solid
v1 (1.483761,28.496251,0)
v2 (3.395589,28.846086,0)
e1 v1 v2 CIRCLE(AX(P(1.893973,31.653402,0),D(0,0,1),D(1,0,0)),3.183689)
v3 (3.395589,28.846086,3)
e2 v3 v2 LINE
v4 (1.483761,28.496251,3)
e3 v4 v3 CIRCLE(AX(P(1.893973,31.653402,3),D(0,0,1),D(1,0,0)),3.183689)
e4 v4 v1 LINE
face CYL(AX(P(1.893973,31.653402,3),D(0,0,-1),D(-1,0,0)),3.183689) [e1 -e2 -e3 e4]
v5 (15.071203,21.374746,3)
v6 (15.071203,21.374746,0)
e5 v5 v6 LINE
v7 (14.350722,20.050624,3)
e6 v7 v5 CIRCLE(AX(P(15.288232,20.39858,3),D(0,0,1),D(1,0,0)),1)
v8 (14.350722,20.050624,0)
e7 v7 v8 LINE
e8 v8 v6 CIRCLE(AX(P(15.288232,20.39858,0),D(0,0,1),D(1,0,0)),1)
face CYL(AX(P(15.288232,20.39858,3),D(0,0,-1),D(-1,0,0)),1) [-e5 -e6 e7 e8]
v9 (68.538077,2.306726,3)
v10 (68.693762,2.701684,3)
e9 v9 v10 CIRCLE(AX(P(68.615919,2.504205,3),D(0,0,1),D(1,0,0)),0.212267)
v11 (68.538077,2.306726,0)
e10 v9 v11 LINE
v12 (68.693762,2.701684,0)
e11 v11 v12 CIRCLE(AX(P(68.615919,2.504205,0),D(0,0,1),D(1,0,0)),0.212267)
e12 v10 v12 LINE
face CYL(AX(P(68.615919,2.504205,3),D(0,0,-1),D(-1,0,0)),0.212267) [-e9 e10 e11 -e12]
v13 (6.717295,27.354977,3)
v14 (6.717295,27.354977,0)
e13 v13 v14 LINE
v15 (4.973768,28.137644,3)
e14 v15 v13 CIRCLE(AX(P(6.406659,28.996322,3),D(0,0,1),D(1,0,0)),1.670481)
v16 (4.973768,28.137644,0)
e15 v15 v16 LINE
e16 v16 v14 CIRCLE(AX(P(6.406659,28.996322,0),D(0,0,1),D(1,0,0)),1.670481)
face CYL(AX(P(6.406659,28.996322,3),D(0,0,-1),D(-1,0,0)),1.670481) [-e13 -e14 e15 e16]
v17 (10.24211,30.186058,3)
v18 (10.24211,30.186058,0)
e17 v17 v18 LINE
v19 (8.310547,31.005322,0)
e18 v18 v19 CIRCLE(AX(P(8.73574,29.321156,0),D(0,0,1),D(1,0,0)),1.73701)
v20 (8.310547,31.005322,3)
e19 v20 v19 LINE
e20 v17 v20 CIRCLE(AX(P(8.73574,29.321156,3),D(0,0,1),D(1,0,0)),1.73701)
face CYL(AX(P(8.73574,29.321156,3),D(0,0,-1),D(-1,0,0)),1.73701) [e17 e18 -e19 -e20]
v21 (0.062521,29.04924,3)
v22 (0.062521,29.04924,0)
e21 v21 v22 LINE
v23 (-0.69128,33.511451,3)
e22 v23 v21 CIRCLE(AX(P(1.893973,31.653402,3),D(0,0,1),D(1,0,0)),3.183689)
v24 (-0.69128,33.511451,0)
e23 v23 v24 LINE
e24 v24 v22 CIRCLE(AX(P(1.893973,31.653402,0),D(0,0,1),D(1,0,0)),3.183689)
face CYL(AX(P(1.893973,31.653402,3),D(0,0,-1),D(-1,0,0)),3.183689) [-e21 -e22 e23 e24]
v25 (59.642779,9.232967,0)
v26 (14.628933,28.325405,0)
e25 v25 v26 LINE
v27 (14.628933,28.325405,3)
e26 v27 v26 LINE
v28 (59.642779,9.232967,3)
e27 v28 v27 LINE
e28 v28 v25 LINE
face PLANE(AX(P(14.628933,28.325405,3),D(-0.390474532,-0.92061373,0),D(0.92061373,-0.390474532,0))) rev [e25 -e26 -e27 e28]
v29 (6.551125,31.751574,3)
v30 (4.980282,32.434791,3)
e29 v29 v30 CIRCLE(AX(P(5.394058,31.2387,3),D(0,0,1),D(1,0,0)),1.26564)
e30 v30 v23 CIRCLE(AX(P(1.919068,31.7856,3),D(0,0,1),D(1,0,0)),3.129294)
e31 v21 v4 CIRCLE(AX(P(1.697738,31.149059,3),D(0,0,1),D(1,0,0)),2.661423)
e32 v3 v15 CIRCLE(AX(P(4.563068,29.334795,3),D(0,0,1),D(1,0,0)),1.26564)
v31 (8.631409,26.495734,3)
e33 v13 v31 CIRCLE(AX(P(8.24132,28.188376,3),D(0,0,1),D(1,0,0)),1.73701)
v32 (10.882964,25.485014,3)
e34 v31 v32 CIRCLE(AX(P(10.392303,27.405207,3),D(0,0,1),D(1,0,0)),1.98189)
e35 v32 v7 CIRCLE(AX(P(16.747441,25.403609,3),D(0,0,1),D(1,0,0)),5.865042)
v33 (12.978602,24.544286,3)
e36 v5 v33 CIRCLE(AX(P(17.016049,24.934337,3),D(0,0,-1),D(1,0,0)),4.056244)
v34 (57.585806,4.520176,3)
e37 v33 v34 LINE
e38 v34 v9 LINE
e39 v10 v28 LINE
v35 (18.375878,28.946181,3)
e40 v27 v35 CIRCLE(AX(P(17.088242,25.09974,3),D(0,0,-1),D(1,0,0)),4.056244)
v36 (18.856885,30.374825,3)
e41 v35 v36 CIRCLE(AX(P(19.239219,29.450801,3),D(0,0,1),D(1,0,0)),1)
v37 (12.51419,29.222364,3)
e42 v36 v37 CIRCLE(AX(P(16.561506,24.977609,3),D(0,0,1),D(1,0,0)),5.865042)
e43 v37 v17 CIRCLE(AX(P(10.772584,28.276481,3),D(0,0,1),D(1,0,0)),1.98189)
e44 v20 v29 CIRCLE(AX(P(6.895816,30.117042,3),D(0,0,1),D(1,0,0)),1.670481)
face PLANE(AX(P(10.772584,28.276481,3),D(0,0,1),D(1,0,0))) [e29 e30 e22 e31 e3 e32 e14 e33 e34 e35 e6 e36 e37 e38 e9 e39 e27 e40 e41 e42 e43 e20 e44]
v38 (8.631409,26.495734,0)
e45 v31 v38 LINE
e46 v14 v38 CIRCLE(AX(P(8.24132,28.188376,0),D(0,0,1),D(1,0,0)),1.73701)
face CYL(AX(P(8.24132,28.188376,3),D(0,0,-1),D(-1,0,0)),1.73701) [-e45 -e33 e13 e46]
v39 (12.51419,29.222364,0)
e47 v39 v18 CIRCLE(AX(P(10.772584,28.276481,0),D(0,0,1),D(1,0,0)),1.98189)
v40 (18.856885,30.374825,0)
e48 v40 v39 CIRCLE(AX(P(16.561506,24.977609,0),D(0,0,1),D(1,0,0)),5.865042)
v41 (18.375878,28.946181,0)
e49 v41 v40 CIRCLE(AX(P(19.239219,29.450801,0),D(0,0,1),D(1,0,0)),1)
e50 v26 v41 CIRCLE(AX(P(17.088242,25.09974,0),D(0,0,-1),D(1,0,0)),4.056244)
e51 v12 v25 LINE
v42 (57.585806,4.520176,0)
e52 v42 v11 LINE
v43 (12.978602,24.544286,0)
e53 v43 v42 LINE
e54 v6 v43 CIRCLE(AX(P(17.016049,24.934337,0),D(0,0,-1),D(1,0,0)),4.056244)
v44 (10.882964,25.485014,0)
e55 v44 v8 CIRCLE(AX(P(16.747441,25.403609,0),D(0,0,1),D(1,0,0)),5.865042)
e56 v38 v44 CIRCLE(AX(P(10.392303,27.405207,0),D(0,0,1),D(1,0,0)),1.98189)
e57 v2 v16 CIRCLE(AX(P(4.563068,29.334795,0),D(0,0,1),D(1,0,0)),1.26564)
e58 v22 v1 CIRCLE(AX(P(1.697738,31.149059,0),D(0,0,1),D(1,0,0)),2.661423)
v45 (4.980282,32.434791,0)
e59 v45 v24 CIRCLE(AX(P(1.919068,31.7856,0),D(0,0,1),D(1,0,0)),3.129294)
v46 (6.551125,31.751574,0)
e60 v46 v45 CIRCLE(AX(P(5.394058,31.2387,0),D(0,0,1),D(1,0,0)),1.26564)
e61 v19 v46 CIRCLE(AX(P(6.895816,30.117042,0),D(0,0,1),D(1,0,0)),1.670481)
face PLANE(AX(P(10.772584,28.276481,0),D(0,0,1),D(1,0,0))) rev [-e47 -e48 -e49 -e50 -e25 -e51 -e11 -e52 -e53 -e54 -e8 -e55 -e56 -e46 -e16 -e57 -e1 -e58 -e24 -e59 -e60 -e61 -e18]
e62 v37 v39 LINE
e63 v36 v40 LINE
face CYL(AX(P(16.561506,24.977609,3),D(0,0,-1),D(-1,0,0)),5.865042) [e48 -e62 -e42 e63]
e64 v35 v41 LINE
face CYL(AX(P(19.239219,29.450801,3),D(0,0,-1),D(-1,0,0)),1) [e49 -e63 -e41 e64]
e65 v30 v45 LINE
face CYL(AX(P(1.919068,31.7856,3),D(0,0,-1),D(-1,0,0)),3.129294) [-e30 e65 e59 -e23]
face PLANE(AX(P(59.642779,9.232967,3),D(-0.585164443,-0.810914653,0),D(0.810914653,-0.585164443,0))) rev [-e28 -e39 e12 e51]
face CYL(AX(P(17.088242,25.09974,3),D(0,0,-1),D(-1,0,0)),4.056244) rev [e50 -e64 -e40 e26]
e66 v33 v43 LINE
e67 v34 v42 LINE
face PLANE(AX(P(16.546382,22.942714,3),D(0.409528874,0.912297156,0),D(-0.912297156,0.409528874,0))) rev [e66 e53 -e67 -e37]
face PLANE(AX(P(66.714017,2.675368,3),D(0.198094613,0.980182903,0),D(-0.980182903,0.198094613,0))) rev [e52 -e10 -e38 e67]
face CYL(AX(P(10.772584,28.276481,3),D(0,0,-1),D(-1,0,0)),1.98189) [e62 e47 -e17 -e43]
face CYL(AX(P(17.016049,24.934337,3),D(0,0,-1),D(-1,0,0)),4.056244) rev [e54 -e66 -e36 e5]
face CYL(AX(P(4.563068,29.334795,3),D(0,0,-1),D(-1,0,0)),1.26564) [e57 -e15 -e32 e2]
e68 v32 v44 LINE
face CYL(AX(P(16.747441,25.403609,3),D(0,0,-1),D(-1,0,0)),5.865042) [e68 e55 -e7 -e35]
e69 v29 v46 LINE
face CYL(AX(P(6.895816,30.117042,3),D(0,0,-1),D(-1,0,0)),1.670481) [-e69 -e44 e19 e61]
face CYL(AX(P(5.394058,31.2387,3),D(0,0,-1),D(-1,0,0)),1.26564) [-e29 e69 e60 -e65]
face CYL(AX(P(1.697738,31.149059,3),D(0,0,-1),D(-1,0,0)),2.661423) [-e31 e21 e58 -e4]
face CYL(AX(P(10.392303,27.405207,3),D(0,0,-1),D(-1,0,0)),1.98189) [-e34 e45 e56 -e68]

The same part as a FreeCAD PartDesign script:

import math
import FreeCAD as App
import Part
import Sketcher
from FreeCAD import Vector

doc = App.newDocument("Part")
params = doc.addObject("Spreadsheet::Sheet", "Params")
for row, (alias, value) in enumerate([
    ("sketch1_radius", "1 mm"),
    ("sketch1_radius2", "1 mm"),
    ("pad1_length", "3 mm"),
], start=1):
    params.set(f"A{row}", alias)
    params.set(f"B{row}", "=" + value)
    params.setAlias(f"B{row}", alias)

body = doc.addObject("PartDesign::Body", "Body")

# Sketch on XY plane
sketch1 = body.newObject("Sketcher::SketchObject", "Sketch")
sketch1.AttachmentSupport = (doc.getObject("XY_Plane"), [""])
sketch1.MapMode = "FlatFace"
sketch1.addGeometry([
    Part.LineSegment(Vector(66.714017, 2.675368, 0), Vector(68.538077, 2.306726, 0)),  # 0
    Part.ArcOfCircle(Part.Circle(Vector(68.615919, 2.504205, 0), Vector(0, 0, 1), 0.212267), math.radians(-111.513427), math.radians(68.486573)),  # 1
    Part.LineSegment(Vector(68.693762, 2.701684, 0), Vector(59.642779, 9.232967, 0)),  # 2
    Part.LineSegment(Vector(59.642779, 9.232967, 0), Vector(18.229236, 26.798351, 0)),  # 3
    Part.LineSegment(Vector(18.229236, 26.798351, 0), Vector(14.628933, 28.325405, 0)),  # 4
    Part.ArcOfCircle(Part.Circle(Vector(17.088242, 25.09974, 0), Vector(0, 0, 1), 4.056244), math.radians(71.491499), math.radians(127.322599)),  # 5
    Part.ArcOfCircle(Part.Circle(Vector(19.239219, 29.450801, 0), Vector(0, 0, 1), 1), math.radians(-149.693876), math.radians(112.478325)),  # 6
    Part.ArcOfCircle(Part.Circle(Vector(16.561506, 24.977609, 0), Vector(0, 0, 1), 5.865042), math.radians(66.960464), math.radians(133.636009)),  # 7
    Part.ArcOfCircle(Part.Circle(Vector(10.772584, 28.276481, 0), Vector(0, 0, 1), 1.98189), math.radians(28.506816), math.radians(105.525125)),  # 8
    Part.ArcOfCircle(Part.Circle(Vector(8.73574, 29.321156, 0), Vector(0, 0, 1), 1.73701), math.radians(29.862841), math.radians(104.169101)),  # 9
    Part.ArcOfCircle(Part.Circle(Vector(6.895816, 30.117042, 0), Vector(0, 0, 1), 1.670481), math.radians(32.12387), math.radians(101.908072)),  # 10
    Part.ArcOfCircle(Part.Circle(Vector(5.394058, 31.2387, 0), Vector(0, 0, 1), 1.26564), math.radians(23.905475), math.radians(109.082566)),  # 11
    Part.ArcOfCircle(Part.Circle(Vector(1.919068, 31.7856, 0), Vector(0, 0, 1), 3.129294), math.radians(11.973313), math.radians(146.529023)),  # 12
    Part.ArcOfCircle(Part.Circle(Vector(1.893973, 31.653402, 0), Vector(0, 0, 1), 3.183689), math.radians(144.294797), math.radians(234.882105)),  # 13
    Part.ArcOfCircle(Part.Circle(Vector(1.697738, 31.149059, 0), Vector(0, 0, 1), 2.661423), math.radians(-127.909384), math.radians(-94.611542)),  # 14
    Part.ArcOfCircle(Part.Circle(Vector(1.893973, 31.653402, 0), Vector(0, 0, 1), 3.183689), math.radians(-97.403032), math.radians(-61.85794)),  # 15
    Part.ArcOfCircle(Part.Circle(Vector(4.563068, 29.334795, 0), Vector(0, 0, 1), 1.26564), math.radians(-157.285739), math.radians(-71.064747)),  # 16
    Part.ArcOfCircle(Part.Circle(Vector(6.406659, 28.996322, 0), Vector(0, 0, 1), 1.670481), math.radians(-149.067344), math.radians(-79.283142)),  # 17
    Part.ArcOfCircle(Part.Circle(Vector(8.24132, 28.188376, 0), Vector(0, 0, 1), 1.73701), math.radians(-151.328373), math.radians(-77.022113)),  # 18
    Part.ArcOfCircle(Part.Circle(Vector(10.392303, 27.405207, 0), Vector(0, 0, 1), 1.98189), math.radians(-152.684397), math.radians(-75.666089)),  # 19
    Part.ArcOfCircle(Part.Circle(Vector(16.747441, 25.403609, 0), Vector(0, 0, 1), 5.865042), math.radians(179.204719), math.radians(245.880264)),  # 20
    Part.ArcOfCircle(Part.Circle(Vector(15.288232, 20.39858, 0), Vector(0, 0, 1), 1), math.radians(-159.637597), math.radians(102.534603)),  # 21
    Part.ArcOfCircle(Part.Circle(Vector(17.016049, 24.934337, 0), Vector(0, 0, 1), 4.056244), math.radians(-174.481871), math.radians(-118.650771)),  # 22
    Part.LineSegment(Vector(12.978602, 24.544286, 0), Vector(16.546382, 22.942714, 0)),  # 23
    Part.LineSegment(Vector(16.546382, 22.942714, 0), Vector(57.585806, 4.520176, 0)),  # 24
    Part.LineSegment(Vector(57.585806, 4.520176, 0), Vector(66.714017, 2.675368, 0)),  # 25
], False)
sketch1.addConstraint([
    Sketcher.Constraint("Coincident", 0, 2, 1, 1),
    Sketcher.Constraint("Coincident", 1, 2, 2, 1),
    Sketcher.Constraint("Coincident", 2, 2, 3, 1),
    Sketcher.Constraint("Coincident", 3, 2, 4, 1),
    Sketcher.Constraint("Coincident", 4, 2, 5, 2),
    Sketcher.Constraint("Coincident", 5, 1, 6, 1),
    Sketcher.Constraint("Coincident", 6, 2, 7, 1),
    Sketcher.Constraint("Coincident", 7, 2, 8, 1),
    Sketcher.Constraint("Coincident", 8, 2, 9, 1),
    Sketcher.Constraint("Coincident", 9, 2, 10, 1),
    Sketcher.Constraint("Coincident", 10, 2, 11, 1),
    Sketcher.Constraint("Coincident", 11, 2, 12, 1),
    Sketcher.Constraint("Coincident", 12, 2, 13, 1),
    Sketcher.Constraint("Coincident", 13, 2, 14, 1),
    Sketcher.Constraint("Coincident", 14, 2, 15, 1),
    Sketcher.Constraint("Coincident", 15, 2, 16, 1),
    Sketcher.Constraint("Coincident", 16, 2, 17, 1),
    Sketcher.Constraint("Coincident", 17, 2, 18, 1),
    Sketcher.Constraint("Coincident", 18, 2, 19, 1),
    Sketcher.Constraint("Coincident", 19, 2, 20, 1),
    Sketcher.Constraint("Coincident", 20, 2, 21, 1),
    Sketcher.Constraint("Coincident", 21, 2, 22, 2),
    Sketcher.Constraint("Coincident", 22, 1, 23, 1),
    Sketcher.Constraint("Coincident", 23, 2, 24, 1),
    Sketcher.Constraint("Coincident", 24, 2, 25, 1),
    Sketcher.Constraint("Coincident", 25, 2, 0, 1),
    Sketcher.Constraint("Coincident", 15, 3, 13, 3),
    Sketcher.Constraint("Radius", 6, 1.0),
    Sketcher.Constraint("Radius", 21, 1.0),
    Sketcher.Constraint("Radius", 7, 5.865042),
    Sketcher.Constraint("Radius", 8, 1.98189),
    Sketcher.Constraint("Radius", 9, 1.73701),
    Sketcher.Constraint("Radius", 10, 1.670481),
    Sketcher.Constraint("Radius", 11, 1.26564),
    Sketcher.Constraint("Radius", 13, 3.183689),
    Sketcher.Constraint("Radius", 15, 3.183689),
    Sketcher.Constraint("Radius", 16, 1.26564),
    Sketcher.Constraint("Radius", 17, 1.670481),
    Sketcher.Constraint("Radius", 18, 1.73701),
    Sketcher.Constraint("Radius", 19, 1.98189),
    Sketcher.Constraint("Radius", 20, 5.865042),
    Sketcher.Constraint("Radius", 1, 0.212267),
    Sketcher.Constraint("Radius", 5, 4.056244),
    Sketcher.Constraint("Radius", 12, 3.129294),
    Sketcher.Constraint("Radius", 14, 2.661423),
    Sketcher.Constraint("Radius", 22, 4.056244),
    Sketcher.Constraint("DistanceX", 14, 3, 9, 3, 7.038002),
    Sketcher.Constraint("DistanceY", 7, 3, 20, 3, 0.426),
    Sketcher.Constraint("DistanceY", 17, 3, 9, 2, 2.009001),
    Sketcher.Constraint("DistanceY", -1, 1, 6, 3, 29.450801),
    Sketcher.Constraint("DistanceY", -1, 1, 11, 3, 31.2387),
    Sketcher.Constraint("DistanceY", -1, 1, 12, 3, 31.7856),
    Sketcher.Constraint("DistanceX", 6, 3, 1, 3, 49.3767),
    Sketcher.Constraint("DistanceY", 5, 3, 10, 3, 5.017302),
    Sketcher.Constraint("DistanceX", 11, 3, 17, 3, 1.012601),
    Sketcher.Constraint("DistanceX", 20, 3, 5, 3, 0.340801),
    Sketcher.Constraint("DistanceY", 20, 3, 19, 3, 2.001598),
    Sketcher.Constraint("DistanceY", 21, 3, 8, 3, 7.8779),
    Sketcher.Constraint("DistanceX", 2, 2, 0, 2, 8.895298),
    Sketcher.Constraint("DistanceY", 9, 3, 8, 2, 0.864902),
    Sketcher.Constraint("DistanceX", 16, 3, 16, 2, 0.410699),
    Sketcher.Constraint("DistanceY", 17, 2, 18, 3, 0.833399),
    Sketcher.Constraint("DistanceX", 22, 1, 21, 2, 2.092601),
    Sketcher.Constraint("DistanceX", 19, 3, 22, 1, 2.5863),
    Sketcher.Constraint("DistanceY", 25, 2, 2, 2, 6.557599),
    Sketcher.Constraint("Distance", 0, 1.860938),
    Sketcher.Constraint("Distance", 2, 11.16145),
    Sketcher.Constraint("Distance", 3, 44.984711),
    Sketcher.Constraint("Distance", 24, 44.984711),
    Sketcher.Constraint("DistanceX", -1, 1, 1, 3, 68.615919),
    Sketcher.Constraint("DistanceX", -1, 1, 5, 3, 17.088242),
    Sketcher.Constraint("DistanceY", -1, 1, 5, 3, 25.09974),
    Sketcher.Constraint("DistanceY", -1, 1, 7, 3, 24.977609),
    Sketcher.Constraint("DistanceY", -1, 1, 8, 3, 28.276481),
    Sketcher.Constraint("DistanceX", -1, 1, 9, 3, 8.73574),
    Sketcher.Constraint("DistanceX", -1, 1, 11, 3, 5.394058),
    Sketcher.Constraint("DistanceX", -1, 1, 12, 3, 1.919068),
    Sketcher.Constraint("DistanceY", -1, 1, 14, 3, 31.149059),
    Sketcher.Constraint("DistanceX", -1, 1, 16, 3, 4.563068),
    Sketcher.Constraint("DistanceY", -1, 1, 17, 3, 28.996322),
    Sketcher.Constraint("DistanceX", -1, 1, 18, 3, 8.24132),
    Sketcher.Constraint("DistanceX", -1, 1, 22, 3, 17.016049),
    Sketcher.Constraint("DistanceX", -1, 1, 1, 2, 68.693762),
    Sketcher.Constraint("DistanceX", -1, 1, 2, 2, 59.642779),
    Sketcher.Constraint("DistanceY", -1, 1, 3, 2, 26.798351),
    Sketcher.Constraint("DistanceX", -1, 1, 7, 2, 12.51419),
    Sketcher.Constraint("DistanceX", 12, 2, -1, 1, 0.69128),
    Sketcher.Constraint("DistanceX", -1, 1, 13, 2, 0.062521),
    Sketcher.Constraint("DistanceX", -1, 1, 18, 2, 8.631409),
    Sketcher.Constraint("DistanceX", -1, 1, 20, 2, 14.350722),
    Sketcher.Constraint("DistanceX", -1, 1, 23, 2, 16.546382),
    Sketcher.Constraint("DistanceY", -1, 1, 25, 2, 2.675368),
    Sketcher.Constraint("DistanceY", 1, 3, 9, 3, 26.816951),
    Sketcher.Constraint("DistanceX", 4, 2, 20, 3, 2.118508),
    Sketcher.Constraint("DistanceY", 21, 2, 23, 2, 1.567969),
    Sketcher.Constraint("DistanceY", 24, 2, 2, 2, 4.71279),
])
sketch1.setExpression("Constraints[27]", "Params.sketch1_radius")
sketch1.setExpression("Constraints[28]", "Params.sketch1_radius2")
pad1 = body.newObject("PartDesign::Pad", "Pad")
pad1.Profile = sketch1
pad1.setExpression("Length", "Params.pad1_length")

doc.recompute()
